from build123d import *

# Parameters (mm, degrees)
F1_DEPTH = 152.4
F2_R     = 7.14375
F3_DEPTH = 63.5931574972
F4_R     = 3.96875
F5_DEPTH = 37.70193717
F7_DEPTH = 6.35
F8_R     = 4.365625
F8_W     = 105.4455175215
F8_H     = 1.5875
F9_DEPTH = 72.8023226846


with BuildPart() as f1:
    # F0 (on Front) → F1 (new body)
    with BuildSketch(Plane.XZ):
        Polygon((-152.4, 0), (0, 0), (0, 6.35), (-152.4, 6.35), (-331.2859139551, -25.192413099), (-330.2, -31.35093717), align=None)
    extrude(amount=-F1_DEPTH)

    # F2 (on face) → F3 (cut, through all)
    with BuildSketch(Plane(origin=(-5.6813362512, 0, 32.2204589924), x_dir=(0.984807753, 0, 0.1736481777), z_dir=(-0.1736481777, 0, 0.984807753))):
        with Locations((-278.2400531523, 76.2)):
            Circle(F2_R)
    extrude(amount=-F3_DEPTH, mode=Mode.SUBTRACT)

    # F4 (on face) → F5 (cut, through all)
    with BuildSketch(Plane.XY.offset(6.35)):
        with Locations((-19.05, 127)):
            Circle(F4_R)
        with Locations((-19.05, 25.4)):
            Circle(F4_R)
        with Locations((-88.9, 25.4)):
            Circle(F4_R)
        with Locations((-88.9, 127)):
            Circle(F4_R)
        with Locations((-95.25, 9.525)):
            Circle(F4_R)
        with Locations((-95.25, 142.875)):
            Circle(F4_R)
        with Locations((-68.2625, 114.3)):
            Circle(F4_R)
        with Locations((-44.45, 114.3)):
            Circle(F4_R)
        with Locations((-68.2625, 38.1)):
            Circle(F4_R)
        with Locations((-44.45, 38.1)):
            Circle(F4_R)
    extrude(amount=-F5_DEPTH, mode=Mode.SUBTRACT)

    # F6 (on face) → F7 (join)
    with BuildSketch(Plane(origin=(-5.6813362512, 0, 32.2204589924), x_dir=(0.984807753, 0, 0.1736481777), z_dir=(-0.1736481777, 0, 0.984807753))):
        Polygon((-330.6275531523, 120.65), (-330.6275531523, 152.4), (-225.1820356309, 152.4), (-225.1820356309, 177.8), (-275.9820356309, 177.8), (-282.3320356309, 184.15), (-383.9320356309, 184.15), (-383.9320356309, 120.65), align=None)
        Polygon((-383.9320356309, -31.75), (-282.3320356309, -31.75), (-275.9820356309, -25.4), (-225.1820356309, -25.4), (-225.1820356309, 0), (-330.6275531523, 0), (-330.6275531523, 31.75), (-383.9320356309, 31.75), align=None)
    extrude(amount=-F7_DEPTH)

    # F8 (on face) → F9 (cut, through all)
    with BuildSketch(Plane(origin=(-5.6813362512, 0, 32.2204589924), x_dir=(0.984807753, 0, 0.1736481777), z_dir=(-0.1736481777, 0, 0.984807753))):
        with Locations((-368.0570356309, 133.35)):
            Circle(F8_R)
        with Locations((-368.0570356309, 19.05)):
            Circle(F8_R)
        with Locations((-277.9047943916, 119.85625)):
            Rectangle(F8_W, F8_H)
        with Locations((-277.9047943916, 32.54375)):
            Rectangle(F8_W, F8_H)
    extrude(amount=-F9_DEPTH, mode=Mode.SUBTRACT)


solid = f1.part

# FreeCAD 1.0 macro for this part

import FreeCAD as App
import Part
import Sketcher

V = App.Vector
Q = App.Units.Quantity

doc = App.newDocument("Part")
body = doc.addObject("PartDesign::Body", "Body")

# Sketch on XZ plane
sketch1 = body.newObject("Sketcher::SketchObject", "Sketch")
sketch1.AttachmentSupport = (doc.getObject("XZ_Plane"), [""])
sketch1.MapMode = "FlatFace"
sketch1.addGeometry([
    Part.LineSegment(V(-152.4, 0, 0), V(0, 0, 0)),  # 0
    Part.LineSegment(V(0, 0, 0), V(0, 6.35, 0)),  # 1
    Part.LineSegment(V(0, 6.35, 0), V(-152.4, 6.35, 0)),  # 2
    Part.LineSegment(V(-152.4, 6.35, 0), V(-331.285914, -25.192413, 0)),  # 3
    Part.LineSegment(V(-331.285914, -25.192413, 0), V(-330.2, -31.350937, 0)),  # 4
    Part.LineSegment(V(-330.2, -31.350937, 0), V(-152.4, 0, 0)),  # 5
], False)
sketch1.addConstraint([
    Sketcher.Constraint("Coincident", 0, 2, 1, 1),
    Sketcher.Constraint("Coincident", 1, 2, 2, 1),
    Sketcher.Constraint("Coincident", 2, 2, 3, 1),
    Sketcher.Constraint("Coincident", 3, 2, 4, 1),
    Sketcher.Constraint("Coincident", 4, 2, 5, 1),
    Sketcher.Constraint("Coincident", 5, 2, 0, 1),
    Sketcher.Constraint("Horizontal", 0),
    Sketcher.Constraint("Vertical", 1),
    Sketcher.Constraint("Horizontal", 2),
    Sketcher.Constraint("Coincident", 0, 2, -1, 1),
    Sketcher.Constraint("Perpendicular", 3, 4),
    Sketcher.Constraint("Perpendicular", 4, 5),
    Sketcher.Constraint("Vertical", 2, 2, 5, 2),
    Sketcher.Constraint("DistanceX", 0, 1, 0, 2, Q("6 in")),
    Sketcher.Constraint("DistanceX", 4, 2, -1, 1, Q("13 in")),
    Sketcher.Constraint("Angle", 3, Q("-170 deg")),
    Sketcher.Constraint("DistanceY", 1, 1, 1, 2, Q("0.25 in")),
])
pad1 = body.newObject("PartDesign::Pad", "Pad")
pad1.Profile = sketch1
pad1.Length = Q("6 in")
pad1.Reversed = True

# Sketch on an angled plane
sketch2 = body.newObject("Sketcher::SketchObject", "Sketch001")
sketch2.Placement = App.Placement(V(-5.681336, 0, 32.220459), App.Rotation(V(0.984807753, 0, 0.173648178), V(0, 1, 0), V(-0.173648178, 0, 0.984807753), "ZXY"))
sketch2.addGeometry(Part.Circle(V(-278.240053, 76.2, 0), V(0, 0, 1), 7.14375), False)
sketch2.addConstraint([
    Sketcher.Constraint("Diameter", 0, Q("0.5625 in")),
    Sketcher.Constraint("DistanceY", -1, 1, 0, 3, Q("3 in")),
    Sketcher.Constraint("DistanceX", 0, 3, -1, 1, Q("278.240053 mm")),
])
pocket1 = body.newObject("PartDesign::Pocket", "Pocket")
pocket1.Profile = sketch2
pocket1.Type = "ThroughAll"

# Sketch on XY plane
sketch3 = body.newObject("Sketcher::SketchObject", "Sketch002")
sketch3.AttachmentSupport = (doc.getObject("XY_Plane"), [""])
sketch3.MapMode = "FlatFace"
sketch3.AttachmentOffset = App.Placement(V(0, 0, 0.25 * 25.4), App.Rotation())
sketch3.addGeometry([
    Part.Circle(V(-19.05, 127, 0), V(0, 0, 1), 3.96875),  # 0
    Part.Circle(V(-19.05, 25.4, 0), V(0, 0, 1), 3.96875),  # 1
    Part.Circle(V(-88.9, 25.4, 0), V(0, 0, 1), 3.96875),  # 2
    Part.Circle(V(-88.9, 127, 0), V(0, 0, 1), 3.96875),  # 3
    Part.Circle(V(-95.25, 9.525, 0), V(0, 0, 1), 3.96875),  # 4
    Part.Circle(V(-95.25, 142.875, 0), V(0, 0, 1), 3.96875),  # 5
    Part.Circle(V(-68.2625, 114.3, 0), V(0, 0, 1), 3.96875),  # 6
    Part.Circle(V(-44.45, 114.3, 0), V(0, 0, 1), 3.96875),  # 7
    Part.Circle(V(-68.2625, 38.1, 0), V(0, 0, 1), 3.96875),  # 8
    Part.Circle(V(-44.45, 38.1, 0), V(0, 0, 1), 3.96875),  # 9
], False)
sketch3.addConstraint([
    Sketcher.Constraint("Equal", 0, 1),
    Sketcher.Constraint("Equal", 1, 2),
    Sketcher.Constraint("Equal", 2, 3),
    Sketcher.Constraint("Equal", 3, 4),
    Sketcher.Constraint("Equal", 4, 5),
    Sketcher.Constraint("Equal", 5, 6),
    Sketcher.Constraint("Equal", 6, 7),
    Sketcher.Constraint("Equal", 7, 8),
    Sketcher.Constraint("Equal", 8, 9),
    Sketcher.Constraint("Horizontal", 1, 3, 2, 3),
    Sketcher.Constraint("Horizontal", 0, 3, 3, 3),
    Sketcher.Constraint("Horizontal", 6, 3, 7, 3),
    Sketcher.Constraint("Horizontal", 8, 3, 9, 3),
    Sketcher.Constraint("Vertical", 0, 3, 1, 3),
    Sketcher.Constraint("Vertical", 2, 3, 3, 3),
    Sketcher.Constraint("Vertical", 4, 3, 5, 3),
    Sketcher.Constraint("Vertical", 6, 3, 8, 3),
    Sketcher.Constraint("Vertical", 7, 3, 9, 3),
    Sketcher.Constraint("Diameter", 0, Q("0.3125 in")),
    Sketcher.Constraint("DistanceY", -1, 1, 0, 3, Q("5 in")),
    Sketcher.Constraint("DistanceY", -1, 1, 1, 3, Q("1 in")),
    Sketcher.Constraint("DistanceX", 4, 3, 1, 3, Q("3 in")),
    Sketcher.Constraint("DistanceX", 7, 3, 0, 3, Q("1 in")),
    Sketcher.Constraint("DistanceY", 8, 3, 6, 3, Q("3 in")),
    Sketcher.Constraint("DistanceX", 2, 3, -1, 1, Q("3.5 in")),
    Sketcher.Constraint("DistanceY", -1, 1, 6, 3, Q("4.5 in")),
    Sketcher.Constraint("DistanceX", 0, 3, -1, 1, Q("0.75 in")),
    Sketcher.Constraint("DistanceY", 4, 3, 5, 3, Q("5.25 in")),
    Sketcher.Constraint("DistanceY", -1, 1, 4, 3, Q("0.375 in")),
    Sketcher.Constraint("DistanceX", 6, 3, -1, 1, Q("2.6875 in")),
])
pocket2 = body.newObject("PartDesign::Pocket", "Pocket001")
pocket2.Profile = sketch3
pocket2.Type = "ThroughAll"

# Sketch on an angled plane
sketch4 = body.newObject("Sketcher::SketchObject", "Sketch003")
sketch4.Placement = App.Placement(V(-5.681336, 0, 32.220459), App.Rotation(V(0.984807753, 0, 0.173648178), V(0, 1, 0), V(-0.173648178, 0, 0.984807753), "ZXY"))
sketch4.addGeometry([
    Part.LineSegment(V(-330.627553, 120.65, 0), V(-330.627553, 152.4, 0)),  # 0
    Part.LineSegment(V(-330.627553, 152.4, 0), V(-225.182036, 152.4, 0)),  # 1
    Part.LineSegment(V(-225.182036, 152.4, 0), V(-225.182036, 177.8, 0)),  # 2
    Part.LineSegment(V(-225.182036, 177.8, 0), V(-275.982036, 177.8, 0)),  # 3
    Part.LineSegment(V(-275.982036, 177.8, 0), V(-282.332036, 184.15, 0)),  # 4
    Part.LineSegment(V(-282.332036, 184.15, 0), V(-383.932036, 184.15, 0)),  # 5
    Part.LineSegment(V(-383.932036, 184.15, 0), V(-383.932036, 120.65, 0)),  # 6
    Part.LineSegment(V(-383.932036, 120.65, 0), V(-330.627553, 120.65, 0)),  # 7
    Part.LineSegment(V(-383.932036, -31.75, 0), V(-282.332036, -31.75, 0)),  # 8
    Part.LineSegment(V(-282.332036, -31.75, 0), V(-275.982036, -25.4, 0)),  # 9
    Part.LineSegment(V(-275.982036, -25.4, 0), V(-225.182036, -25.4, 0)),  # 10
    Part.LineSegment(V(-225.182036, -25.4, 0), V(-225.182036, 0, 0)),  # 11
    Part.LineSegment(V(-225.182036, 0, 0), V(-330.627553, 0, 0)),  # 12
    Part.LineSegment(V(-330.627553, 0, 0), V(-330.627553, 31.75, 0)),  # 13
    Part.LineSegment(V(-330.627553, 31.75, 0), V(-383.932036, 31.75, 0)),  # 14
    Part.LineSegment(V(-383.932036, 31.75, 0), V(-383.932036, -31.75, 0)),  # 15
], False)
sketch4.addConstraint([
    Sketcher.Constraint("Coincident", 0, 2, 1, 1),
    Sketcher.Constraint("Coincident", 1, 2, 2, 1),
    Sketcher.Constraint("Coincident", 2, 2, 3, 1),
    Sketcher.Constraint("Coincident", 3, 2, 4, 1),
    Sketcher.Constraint("Coincident", 4, 2, 5, 1),
    Sketcher.Constraint("Coincident", 5, 2, 6, 1),
    Sketcher.Constraint("Coincident", 6, 2, 7, 1),
    Sketcher.Constraint("Coincident", 7, 2, 0, 1),
    Sketcher.Constraint("Coincident", 8, 2, 9, 1),
    Sketcher.Constraint("Coincident", 9, 2, 10, 1),
    Sketcher.Constraint("Coincident", 10, 2, 11, 1),
    Sketcher.Constraint("Coincident", 11, 2, 12, 1),
    Sketcher.Constraint("Coincident", 12, 2, 13, 1),
    Sketcher.Constraint("Coincident", 13, 2, 14, 1),
    Sketcher.Constraint("Coincident", 14, 2, 15, 1),
    Sketcher.Constraint("Coincident", 15, 2, 8, 1),
    Sketcher.Constraint("Vertical", 0),
    Sketcher.Constraint("Horizontal", 1),
    Sketcher.Constraint("Vertical", 2),
    Sketcher.Constraint("Horizontal", 3),
    Sketcher.Constraint("Horizontal", 5),
    Sketcher.Constraint("Vertical", 6),
    Sketcher.Constraint("Horizontal", 7),
    Sketcher.Constraint("Horizontal", 8),
    Sketcher.Constraint("Horizontal", 10),
    Sketcher.Constraint("Vertical", 11),
    Sketcher.Constraint("Horizontal", 12),
    Sketcher.Constraint("Vertical", 13),
    Sketcher.Constraint("Horizontal", 14),
    Sketcher.Constraint("Vertical", 15),
    Sketcher.Constraint("PointOnObject", 11, 2, -1),
    Sketcher.Constraint("Perpendicular", 4, 9),
    Sketcher.Constraint("Vertical", 4, 2, 8, 2),
    Sketcher.Constraint("Vertical", 3, 2, 9, 2),
    Sketcher.Constraint("Vertical", 2, 2, 10, 2),
    Sketcher.Constraint("Vertical", 7, 2, 12, 2),
    Sketcher.Constraint("Vertical", 6, 2, 14, 2),
    Sketcher.Constraint("Equal", 2, 11),
    Sketcher.Constraint("Equal", 0, 13),
    Sketcher.Constraint("Equal", 6, 15),
    Sketcher.Constraint("DistanceX", 3, 2, 3, 1, Q("2 in")),
    Sketcher.Constraint("DistanceX", 5, 2, 5, 1, Q("4 in")),
    Sketcher.Constraint("DistanceY", 2, 1, 2, 2, Q("1 in")),
    Sketcher.Constraint("DistanceY", 6, 2, 6, 1, Q("2.5 in")),
    Sketcher.Constraint("DistanceY", -1, 1, 0, 2, Q("6 in")),
    Sketcher.Constraint("DistanceY", 8, 2, 7, 2, Q("6 in")),
    Sketcher.Constraint("DistanceX", 1, 1, 1, 2, Q("105.445518 mm")),
    Sketcher.Constraint("DistanceX", 0, 2, -1, 1, Q("330.627553 mm")),
])
pad2 = body.newObject("PartDesign::Pad", "Pad001")
pad2.Profile = sketch4
pad2.Length = Q("0.25 in")
pad2.Reversed = True

# Sketch on an angled plane
sketch5 = body.newObject("Sketcher::SketchObject", "Sketch004")
sketch5.Placement = App.Placement(V(-5.681336, 0, 32.220459), App.Rotation(V(0.984807753, 0, 0.173648178), V(0, 1, 0), V(-0.173648178, 0, 0.984807753), "ZXY"))
sketch5.addGeometry([
    Part.Circle(V(-368.057036, 133.35, 0), V(0, 0, 1), 4.365625),  # 0
    Part.Circle(V(-368.057036, 19.05, 0), V(0, 0, 1), 4.365625),  # 1
    Part.LineSegment(V(-330.627553, 120.65, 0), V(-330.627553, 119.0625, 0)),  # 2
    Part.LineSegment(V(-330.627553, 119.0625, 0), V(-225.182036, 119.0625, 0)),  # 3
    Part.LineSegment(V(-225.182036, 119.0625, 0), V(-225.182036, 120.65, 0)),  # 4
    Part.LineSegment(V(-225.182036, 120.65, 0), V(-330.627553, 120.65, 0)),  # 5
    Part.LineSegment(V(-330.627553, 33.3375, 0), V(-330.627553, 31.75, 0)),  # 6
    Part.LineSegment(V(-330.627553, 31.75, 0), V(-225.182036, 31.75, 0)),  # 7
    Part.LineSegment(V(-225.182036, 31.75, 0), V(-225.182036, 33.3375, 0)),  # 8
    Part.LineSegment(V(-225.182036, 33.3375, 0), V(-330.627553, 33.3375, 0)),  # 9
], False)
sketch5.addConstraint([
    Sketcher.Constraint("Coincident", 2, 2, 3, 1),
    Sketcher.Constraint("Coincident", 3, 2, 4, 1),
    Sketcher.Constraint("Coincident", 4, 2, 5, 1),
    Sketcher.Constraint("Coincident", 5, 2, 2, 1),
    Sketcher.Constraint("Coincident", 6, 2, 7, 1),
    Sketcher.Constraint("Coincident", 7, 2, 8, 1),
    Sketcher.Constraint("Coincident", 8, 2, 9, 1),
    Sketcher.Constraint("Coincident", 9, 2, 6, 1),
    Sketcher.Constraint("Vertical", 2),
    Sketcher.Constraint("Horizontal", 3),
    Sketcher.Constraint("Vertical", 4),
    Sketcher.Constraint("Horizontal", 5),
    Sketcher.Constraint("Vertical", 6),
    Sketcher.Constraint("Horizontal", 7),
    Sketcher.Constraint("Vertical", 8),
    Sketcher.Constraint("Horizontal", 9),
    Sketcher.Constraint("Equal", 0, 1),
    Sketcher.Constraint("Vertical", 0, 3, 1, 3),
    Sketcher.Constraint("Vertical", 5, 2, 6, 2),
    Sketcher.Constraint("Vertical", 4, 2, 7, 2),
    Sketcher.Constraint("Equal", 4, 6),
    Sketcher.Constraint("Diameter", 0, Q("0.34375 in")),
    Sketcher.Constraint("DistanceY", 1, 3, 4, 2, Q("4 in")),
    Sketcher.Constraint("DistanceY", 6, 2, 0, 3, Q("4 in")),
    Sketcher.Constraint("DistanceY", 1, 3, 0, 3, Q("4.5 in")),
    Sketcher.Constraint("DistanceY", 2, 2, 2, 1, Q("0.0625 in")),
    Sketcher.Constraint("DistanceY", -1, 1, 0, 3, Q("5.25 in")),
    Sketcher.Constraint("DistanceX", 0, 3, 3, 2, Q("5.625 in")),
    Sketcher.Constraint("DistanceX", 3, 1, 3, 2, Q("105.445518 mm")),
    Sketcher.Constraint("DistanceX", 0, 3, -1, 1, Q("368.057036 mm")),
])
pocket3 = body.newObject("PartDesign::Pocket", "Pocket002")
pocket3.Profile = sketch5
pocket3.Type = "ThroughAll"

doc.recompute()
